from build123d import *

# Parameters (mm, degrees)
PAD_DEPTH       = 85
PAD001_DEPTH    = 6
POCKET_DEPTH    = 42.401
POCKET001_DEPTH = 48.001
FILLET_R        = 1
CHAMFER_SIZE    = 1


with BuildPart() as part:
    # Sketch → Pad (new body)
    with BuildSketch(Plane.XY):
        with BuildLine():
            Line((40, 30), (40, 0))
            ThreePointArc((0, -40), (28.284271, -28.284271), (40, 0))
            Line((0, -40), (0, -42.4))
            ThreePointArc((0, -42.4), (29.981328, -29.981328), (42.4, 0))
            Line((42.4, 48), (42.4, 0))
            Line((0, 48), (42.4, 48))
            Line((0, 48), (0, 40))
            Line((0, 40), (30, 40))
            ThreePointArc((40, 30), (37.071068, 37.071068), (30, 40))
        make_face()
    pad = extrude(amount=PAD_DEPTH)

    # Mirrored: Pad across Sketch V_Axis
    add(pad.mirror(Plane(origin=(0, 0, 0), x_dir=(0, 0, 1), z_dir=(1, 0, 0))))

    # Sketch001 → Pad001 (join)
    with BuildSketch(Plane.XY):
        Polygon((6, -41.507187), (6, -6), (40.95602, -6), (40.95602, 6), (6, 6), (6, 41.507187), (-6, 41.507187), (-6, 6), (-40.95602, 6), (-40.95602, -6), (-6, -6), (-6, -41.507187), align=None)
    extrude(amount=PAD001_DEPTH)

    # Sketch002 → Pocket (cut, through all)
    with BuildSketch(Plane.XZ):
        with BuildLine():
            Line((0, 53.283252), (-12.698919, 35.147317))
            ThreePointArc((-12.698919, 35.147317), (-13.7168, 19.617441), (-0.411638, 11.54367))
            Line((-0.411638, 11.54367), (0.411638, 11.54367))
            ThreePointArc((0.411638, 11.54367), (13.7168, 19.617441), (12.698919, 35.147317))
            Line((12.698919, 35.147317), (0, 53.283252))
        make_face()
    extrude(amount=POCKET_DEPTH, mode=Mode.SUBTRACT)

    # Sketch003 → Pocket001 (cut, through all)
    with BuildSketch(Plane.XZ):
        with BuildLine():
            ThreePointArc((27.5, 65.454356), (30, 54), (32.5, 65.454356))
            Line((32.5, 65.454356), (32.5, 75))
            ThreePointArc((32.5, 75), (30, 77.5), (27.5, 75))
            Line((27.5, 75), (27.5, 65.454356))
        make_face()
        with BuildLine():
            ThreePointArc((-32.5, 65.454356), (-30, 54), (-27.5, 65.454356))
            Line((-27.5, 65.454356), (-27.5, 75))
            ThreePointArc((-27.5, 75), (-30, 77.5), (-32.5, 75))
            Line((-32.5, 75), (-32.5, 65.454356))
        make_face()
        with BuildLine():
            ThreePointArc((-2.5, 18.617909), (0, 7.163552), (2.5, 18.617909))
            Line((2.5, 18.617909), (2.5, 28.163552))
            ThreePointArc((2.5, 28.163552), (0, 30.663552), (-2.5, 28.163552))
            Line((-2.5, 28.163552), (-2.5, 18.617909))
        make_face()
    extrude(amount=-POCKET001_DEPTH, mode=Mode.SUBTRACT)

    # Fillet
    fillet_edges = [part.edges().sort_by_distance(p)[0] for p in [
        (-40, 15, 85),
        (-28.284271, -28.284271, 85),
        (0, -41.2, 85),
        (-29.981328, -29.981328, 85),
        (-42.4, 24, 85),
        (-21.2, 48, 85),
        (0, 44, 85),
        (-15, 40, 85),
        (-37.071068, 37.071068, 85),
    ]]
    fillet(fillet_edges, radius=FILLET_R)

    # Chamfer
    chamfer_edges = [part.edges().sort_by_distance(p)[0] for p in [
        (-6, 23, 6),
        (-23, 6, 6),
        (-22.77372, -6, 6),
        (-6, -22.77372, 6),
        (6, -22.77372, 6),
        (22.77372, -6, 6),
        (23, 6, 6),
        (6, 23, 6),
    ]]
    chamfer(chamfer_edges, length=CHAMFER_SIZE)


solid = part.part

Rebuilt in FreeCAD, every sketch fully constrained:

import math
import FreeCAD as App
import Part
import Sketcher
from FreeCAD import Vector
Q = App.Units.Quantity


def edges_at(feature, points):
    """Names of the edges that pass closest to the given points."""
    edges = feature.Shape.Edges
    near = lambda p: min(range(len(edges)), key=lambda i: edges[i].distToShape(Part.Vertex(*p))[0])
    return sorted({f"Edge{near(p) + 1}" for p in points})

doc = App.newDocument("Part")
body = doc.addObject("PartDesign::Body", "Body")

# Sketch on XY plane
sketch1 = body.newObject("Sketcher::SketchObject", "Sketch")
sketch1.AttachmentSupport = (doc.getObject("XY_Plane"), [""])
sketch1.MapMode = "FlatFace"
sketch1.addGeometry(Part.LineSegment(Vector(40, 30, 0), Vector(40, 0, 0)), False)
sketch1.addGeometry(Part.ArcOfCircle(Part.Circle(Vector(0, 0, 0), Vector(0, 0, 1), 40), math.radians(-90), math.radians(0)), False)
sketch1.addGeometry(Part.LineSegment(Vector(0, -40, 0), Vector(0, -42.4, 0)), False)
sketch1.addGeometry(Part.ArcOfCircle(Part.Circle(Vector(0, 0, 0), Vector(0, 0, 1), 42.4), math.radians(-90), math.radians(0)), False)
sketch1.addGeometry(Part.LineSegment(Vector(42.4, 0, 0), Vector(42.4, 48, 0)), False)
sketch1.addGeometry(Part.LineSegment(Vector(42.4, 48, 0), Vector(0, 48, 0)), False)
sketch1.addGeometry(Part.LineSegment(Vector(0, 48, 0), Vector(0, 40, 0)), False)
sketch1.addGeometry(Part.LineSegment(Vector(0, 40, 0), Vector(30, 40, 0)), False)
sketch1.addGeometry(Part.ArcOfCircle(Part.Circle(Vector(30, 30, 0), Vector(0, 0, 1), 10), math.radians(0), math.radians(90)), False)
sketch1.addConstraint(Sketcher.Constraint("Tangent", 0, 2, 1, 2))
sketch1.addConstraint(Sketcher.Constraint("Coincident", 1, 1, 2, 1))
sketch1.addConstraint(Sketcher.Constraint("Coincident", 2, 2, 3, 1))
sketch1.addConstraint(Sketcher.Constraint("Tangent", 3, 2, 4, 1))
sketch1.addConstraint(Sketcher.Constraint("Coincident", 4, 2, 5, 1))
sketch1.addConstraint(Sketcher.Constraint("Coincident", 5, 2, 6, 1))
sketch1.addConstraint(Sketcher.Constraint("Coincident", 6, 2, 7, 1))
sketch1.addConstraint(Sketcher.Constraint("Tangent", 7, 2, 8, 2))
sketch1.addConstraint(Sketcher.Constraint("Tangent", 8, 1, 0, 1))
sketch1.addConstraint(Sketcher.Constraint("Vertical", 0))
sketch1.addConstraint(Sketcher.Constraint("Vertical", 2))
sketch1.addConstraint(Sketcher.Constraint("Vertical", 4))
sketch1.addConstraint(Sketcher.Constraint("Horizontal", 5))
sketch1.addConstraint(Sketcher.Constraint("Vertical", 6))
sketch1.addConstraint(Sketcher.Constraint("Horizontal", 7))
sketch1.addConstraint(Sketcher.Constraint("Coincident", 1, 3, -1, 1))
sketch1.addConstraint(Sketcher.Constraint("Coincident", 3, 3, -1, 1))
sketch1.addConstraint(Sketcher.Constraint("Symmetric", 1, 1, 6, 2, -1, 1))
sketch1.addConstraint(Sketcher.Constraint("PointOnObject", 1, 1, -2))
sketch1.addConstraint(Sketcher.Constraint("Radius", 1, Q("40.000001 mm")))
sketch1.addConstraint(Sketcher.Constraint("Radius", 8, Q("9.999999 mm")))
sketch1.addConstraint(Sketcher.Constraint("Radius", 3, Q("42.399998 mm")))
sketch1.addConstraint(Sketcher.Constraint("DistanceY", 4, 1, 4, 2, Q("48 mm")))
pad1 = body.newObject("PartDesign::Pad", "Pad")
pad1.Profile = sketch1
pad1.Length = 85
doc.recompute()

mirrored = body.newObject("PartDesign::Mirrored", "Mirrored")
mirrored.Originals = [pad1]
mirrored.MirrorPlane = (doc.getObject("YZ_Plane"), [""])
body.Tip = mirrored

# Sketch on XY plane
sketch2 = body.newObject("Sketcher::SketchObject", "Sketch001")
sketch2.AttachmentSupport = (doc.getObject("XY_Plane"), [""])
sketch2.MapMode = "FlatFace"
sketch2.addGeometry(Part.LineSegment(Vector(6, -42, 0), Vector(6, -6, 0)), False)
sketch2.addGeometry(Part.LineSegment(Vector(6, -6, 0), Vector(41, -6, 0)), False)
sketch2.addGeometry(Part.LineSegment(Vector(41, -6, 0), Vector(41, 6, 0)), False)
sketch2.addGeometry(Part.LineSegment(Vector(41, 6, 0), Vector(6, 6, 0)), False)
sketch2.addGeometry(Part.LineSegment(Vector(6, 6, 0), Vector(6, 42, 0)), False)
sketch2.addGeometry(Part.LineSegment(Vector(6, 42, 0), Vector(-6, 42, 0)), False)
sketch2.addGeometry(Part.LineSegment(Vector(-6, 42, 0), Vector(-6, 6, 0)), False)
sketch2.addGeometry(Part.LineSegment(Vector(-6, 6, 0), Vector(-41, 6, 0)), False)
sketch2.addGeometry(Part.LineSegment(Vector(-41, 6, 0), Vector(-41, -6, 0)), False)
sketch2.addGeometry(Part.LineSegment(Vector(-41, -6, 0), Vector(-6, -6, 0)), False)
sketch2.addGeometry(Part.LineSegment(Vector(-6, -6, 0), Vector(-6, -42, 0)), False)
sketch2.addGeometry(Part.LineSegment(Vector(-6, -42, 0), Vector(6, -42, 0)), False)
sketch2.addConstraint(Sketcher.Constraint("Coincident", 0, 2, 1, 1))
sketch2.addConstraint(Sketcher.Constraint("Coincident", 1, 2, 2, 1))
sketch2.addConstraint(Sketcher.Constraint("Coincident", 2, 2, 3, 1))
sketch2.addConstraint(Sketcher.Constraint("Coincident", 3, 2, 4, 1))
sketch2.addConstraint(Sketcher.Constraint("Coincident", 4, 2, 5, 1))
sketch2.addConstraint(Sketcher.Constraint("Coincident", 5, 2, 6, 1))
sketch2.addConstraint(Sketcher.Constraint("Coincident", 6, 2, 7, 1))
sketch2.addConstraint(Sketcher.Constraint("Coincident", 7, 2, 8, 1))
sketch2.addConstraint(Sketcher.Constraint("Coincident", 8, 2, 9, 1))
sketch2.addConstraint(Sketcher.Constraint("Coincident", 9, 2, 10, 1))
sketch2.addConstraint(Sketcher.Constraint("Coincident", 10, 2, 11, 1))
sketch2.addConstraint(Sketcher.Constraint("Coincident", 11, 2, 0, 1))
sketch2.addConstraint(Sketcher.Constraint("Vertical", 0))
sketch2.addConstraint(Sketcher.Constraint("Horizontal", 1))
sketch2.addConstraint(Sketcher.Constraint("Vertical", 2))
sketch2.addConstraint(Sketcher.Constraint("Horizontal", 3))
sketch2.addConstraint(Sketcher.Constraint("Vertical", 4))
sketch2.addConstraint(Sketcher.Constraint("Horizontal", 5))
sketch2.addConstraint(Sketcher.Constraint("Vertical", 6))
sketch2.addConstraint(Sketcher.Constraint("Horizontal", 7))
sketch2.addConstraint(Sketcher.Constraint("Vertical", 8))
sketch2.addConstraint(Sketcher.Constraint("Horizontal", 9))
sketch2.addConstraint(Sketcher.Constraint("Vertical", 10))
sketch2.addConstraint(Sketcher.Constraint("Horizontal", 11))
sketch2.addConstraint(Sketcher.Constraint("Symmetric", 0, 2, 6, 2, -1, 1))
sketch2.addConstraint(Sketcher.Constraint("Symmetric", 2, 2, 8, 2, -1, 1))
sketch2.addConstraint(Sketcher.Constraint("Symmetric", 4, 2, 10, 2, -1, 1))
sketch2.addConstraint(Sketcher.Constraint("Symmetric", 3, 2, 6, 2, -2))
sketch2.addConstraint(Sketcher.Constraint("Equal", 11, 2))
sketch2.addConstraint(Sketcher.Constraint("DistanceX", 5, 2, 5, 1, Q("12 mm")))
sketch2.addConstraint(Sketcher.Constraint("DistanceX", 1, 1, 1, 2, Q("34.95602 mm")))
sketch2.addConstraint(Sketcher.Constraint("DistanceY", 0, 1, 0, 2, Q("35.507187 mm")))
pad2 = body.newObject("PartDesign::Pad", "Pad001")
pad2.Profile = sketch2
pad2.Length = 6

# Sketch on XZ plane
sketch3 = body.newObject("Sketcher::SketchObject", "Sketch002")
sketch3.AttachmentSupport = (doc.getObject("XZ_Plane"), [""])
sketch3.MapMode = "FlatFace"
sketch3.addGeometry(Part.LineSegment(Vector(0, 53.3, 0), Vector(-12.7, 35.1, 0)), False)
sketch3.addGeometry(Part.ArcOfCircle(Part.Circle(Vector(-0.4, 26.5, 0), Vector(0, 0, 1), 15), math.radians(145), math.radians(270)), False)
sketch3.addGeometry(Part.LineSegment(Vector(-0.4, 11.5, 0), Vector(0.4, 11.5, 0)), False)
sketch3.addGeometry(Part.ArcOfCircle(Part.Circle(Vector(0.4, 26.5, 0), Vector(0, 0, 1), 15), math.radians(-90), math.radians(35)), False)
sketch3.addGeometry(Part.LineSegment(Vector(12.7, 35.1, 0), Vector(0, 53.3, 0)), False)
sketch3.addConstraint(Sketcher.Constraint("Tangent", 0, 2, 1, 1))
sketch3.addConstraint(Sketcher.Constraint("Tangent", 1, 2, 2, 1))
sketch3.addConstraint(Sketcher.Constraint("Tangent", 2, 2, 3, 1))
sketch3.addConstraint(Sketcher.Constraint("Tangent", 3, 2, 4, 1))
sketch3.addConstraint(Sketcher.Constraint("Coincident", 4, 2, 0, 1))
sketch3.addConstraint(Sketcher.Constraint("Horizontal", 2))
sketch3.addConstraint(Sketcher.Constraint("Equal", 1, 3))
sketch3.addConstraint(Sketcher.Constraint("Symmetric", 0, 2, 3, 2, -2))
sketch3.addConstraint(Sketcher.Constraint("Radius", 1, Q("15.000001 mm")))
sketch3.addConstraint(Sketcher.Constraint("Angle", 0, Q("-125.000001 deg")))
sketch3.addConstraint(Sketcher.Constraint("Distance", 0, Q("22.139889 mm")))
sketch3.addConstraint(Sketcher.Constraint("DistanceY", -1, 1, 1, 3, Q("26.543671 mm")))
pocket1 = body.newObject("PartDesign::Pocket", "Pocket")
pocket1.Profile = sketch3
pocket1.Type = "ThroughAll"
pocket1.Reversed = True

# Sketch on XZ plane
sketch4 = body.newObject("Sketcher::SketchObject", "Sketch003")
sketch4.AttachmentSupport = (doc.getObject("XZ_Plane"), [""])
sketch4.MapMode = "FlatFace"
sketch4.addGeometry(Part.ArcOfCircle(Part.Circle(Vector(30, 60, 0), Vector(0, 0, 1), 6), math.radians(115), math.radians(425)), False)
sketch4.addGeometry(Part.LineSegment(Vector(32.5, 65.5, 0), Vector(32.5, 75, 0)), False)
sketch4.addGeometry(Part.ArcOfCircle(Part.Circle(Vector(30, 75, 0), Vector(0, 0, 1), 2.5), math.radians(0), math.radians(180)), False)
sketch4.addGeometry(Part.LineSegment(Vector(27.5, 75, 0), Vector(27.5, 65.5, 0)), False)
sketch4.addGeometry(Part.ArcOfCircle(Part.Circle(Vector(-30, 60, 0), Vector(0, 0, 1), 6), math.radians(115), math.radians(425)), False)
sketch4.addGeometry(Part.LineSegment(Vector(-27.5, 65.5, 0), Vector(-27.5, 75, 0)), False)
sketch4.addGeometry(Part.ArcOfCircle(Part.Circle(Vector(-30, 75, 0), Vector(0, 0, 1), 2.5), math.radians(0), math.radians(180)), False)
sketch4.addGeometry(Part.LineSegment(Vector(-32.5, 75, 0), Vector(-32.5, 65.5, 0)), False)
sketch4.addGeometry(Part.ArcOfCircle(Part.Circle(Vector(0, 13.2, 0), Vector(0, 0, 1), 6), math.radians(115), math.radians(425)), False)
sketch4.addGeometry(Part.LineSegment(Vector(2.5, 18.6, 0), Vector(2.5, 28.2, 0)), False)
sketch4.addGeometry(Part.ArcOfCircle(Part.Circle(Vector(0, 28.2, 0), Vector(0, 0, 1), 2.5), math.radians(0), math.radians(180)), False)
sketch4.addGeometry(Part.LineSegment(Vector(-2.5, 28.2, 0), Vector(-2.5, 18.6, 0)), False)
sketch4.addConstraint(Sketcher.Constraint("Coincident", 0, 2, 1, 1))
sketch4.addConstraint(Sketcher.Constraint("Tangent", 1, 2, 2, 1))
sketch4.addConstraint(Sketcher.Constraint("Tangent", 2, 2, 3, 1))
sketch4.addConstraint(Sketcher.Constraint("Coincident", 3, 2, 0, 1))
sketch4.addConstraint(Sketcher.Constraint("Coincident", 4, 2, 5, 1))
sketch4.addConstraint(Sketcher.Constraint("Tangent", 5, 2, 6, 1))
sketch4.addConstraint(Sketcher.Constraint("Tangent", 6, 2, 7, 1))
sketch4.addConstraint(Sketcher.Constraint("Coincident", 7, 2, 4, 1))
sketch4.addConstraint(Sketcher.Constraint("Coincident", 8, 2, 9, 1))
sketch4.addConstraint(Sketcher.Constraint("Tangent", 9, 2, 10, 1))
sketch4.addConstraint(Sketcher.Constraint("Tangent", 10, 2, 11, 1))
sketch4.addConstraint(Sketcher.Constraint("Coincident", 11, 2, 8, 1))
sketch4.addConstraint(Sketcher.Constraint("Vertical", 1))
sketch4.addConstraint(Sketcher.Constraint("Vertical", 3))
sketch4.addConstraint(Sketcher.Constraint("Vertical", 5))
sketch4.addConstraint(Sketcher.Constraint("Vertical", 7))
sketch4.addConstraint(Sketcher.Constraint("Vertical", 9))
sketch4.addConstraint(Sketcher.Constraint("Vertical", 11))
sketch4.addConstraint(Sketcher.Constraint("Equal", 0, 4))
sketch4.addConstraint(Sketcher.Constraint("Equal", 2, 6))
sketch4.addConstraint(Sketcher.Constraint("Equal", 4, 8))
sketch4.addConstraint(Sketcher.Constraint("Equal", 6, 10))
sketch4.addConstraint(Sketcher.Constraint("Symmetric", 0, 3, 4, 3, -2))
sketch4.addConstraint(Sketcher.Constraint("Symmetric", 2, 3, 6, 3, -2))
sketch4.addConstraint(Sketcher.Constraint("Symmetric", 8, 2, 11, 2, -2))
sketch4.addConstraint(Sketcher.Constraint("Horizontal", 0, 2, 3, 2))
sketch4.addConstraint(Sketcher.Constraint("Equal", 7, 9))
sketch4.addConstraint(Sketcher.Constraint("Radius", 0, Q("6 mm")))
sketch4.addConstraint(Sketcher.Constraint("Radius", 2, Q("2.5 mm")))
sketch4.addConstraint(Sketcher.Constraint("DistanceX", -1, 1, 0, 3, Q("30 mm")))
sketch4.addConstraint(Sketcher.Constraint("DistanceY", -1, 1, 0, 3, Q("60 mm")))
sketch4.addConstraint(Sketcher.Constraint("DistanceY", -1, 1, 2, 3, Q("75 mm")))
sketch4.addConstraint(Sketcher.Constraint("DistanceY", -1, 1, 10, 3, Q("28.163552 mm")))
pocket2 = body.newObject("PartDesign::Pocket", "Pocket001")
pocket2.Profile = sketch4
pocket2.Type = "ThroughAll"
doc.recompute()

fillet = body.newObject("PartDesign::Fillet", "Fillet")
fillet.Base = (pocket2, edges_at(pocket2, [
    (-40, 15, 85),
    (-28.284, -28.284, 85),
    (-29.981, -29.981, 85),
    (-29.981, -29.981, 85),
    (-42.4, 24, 85),
    (0, 48, 85),
    (0, 48, 85),
    (0, 40, 85),
    (-37.071, 37.071, 85),
]))
fillet.Radius = 1
doc.recompute()

chamfer = body.newObject("PartDesign::Chamfer", "Chamfer")
chamfer.Base = (fillet, edges_at(fillet, [
    (-6, 23, 6),
    (-23, 6, 6),
    (-22.774, -6, 6),
    (-6, -22.774, 6),
    (6, -22.774, 6),
    (22.774, -6, 6),
    (23, 6, 6),
    (6, 23, 6),
]))
chamfer.Size = 1

doc.recompute()
